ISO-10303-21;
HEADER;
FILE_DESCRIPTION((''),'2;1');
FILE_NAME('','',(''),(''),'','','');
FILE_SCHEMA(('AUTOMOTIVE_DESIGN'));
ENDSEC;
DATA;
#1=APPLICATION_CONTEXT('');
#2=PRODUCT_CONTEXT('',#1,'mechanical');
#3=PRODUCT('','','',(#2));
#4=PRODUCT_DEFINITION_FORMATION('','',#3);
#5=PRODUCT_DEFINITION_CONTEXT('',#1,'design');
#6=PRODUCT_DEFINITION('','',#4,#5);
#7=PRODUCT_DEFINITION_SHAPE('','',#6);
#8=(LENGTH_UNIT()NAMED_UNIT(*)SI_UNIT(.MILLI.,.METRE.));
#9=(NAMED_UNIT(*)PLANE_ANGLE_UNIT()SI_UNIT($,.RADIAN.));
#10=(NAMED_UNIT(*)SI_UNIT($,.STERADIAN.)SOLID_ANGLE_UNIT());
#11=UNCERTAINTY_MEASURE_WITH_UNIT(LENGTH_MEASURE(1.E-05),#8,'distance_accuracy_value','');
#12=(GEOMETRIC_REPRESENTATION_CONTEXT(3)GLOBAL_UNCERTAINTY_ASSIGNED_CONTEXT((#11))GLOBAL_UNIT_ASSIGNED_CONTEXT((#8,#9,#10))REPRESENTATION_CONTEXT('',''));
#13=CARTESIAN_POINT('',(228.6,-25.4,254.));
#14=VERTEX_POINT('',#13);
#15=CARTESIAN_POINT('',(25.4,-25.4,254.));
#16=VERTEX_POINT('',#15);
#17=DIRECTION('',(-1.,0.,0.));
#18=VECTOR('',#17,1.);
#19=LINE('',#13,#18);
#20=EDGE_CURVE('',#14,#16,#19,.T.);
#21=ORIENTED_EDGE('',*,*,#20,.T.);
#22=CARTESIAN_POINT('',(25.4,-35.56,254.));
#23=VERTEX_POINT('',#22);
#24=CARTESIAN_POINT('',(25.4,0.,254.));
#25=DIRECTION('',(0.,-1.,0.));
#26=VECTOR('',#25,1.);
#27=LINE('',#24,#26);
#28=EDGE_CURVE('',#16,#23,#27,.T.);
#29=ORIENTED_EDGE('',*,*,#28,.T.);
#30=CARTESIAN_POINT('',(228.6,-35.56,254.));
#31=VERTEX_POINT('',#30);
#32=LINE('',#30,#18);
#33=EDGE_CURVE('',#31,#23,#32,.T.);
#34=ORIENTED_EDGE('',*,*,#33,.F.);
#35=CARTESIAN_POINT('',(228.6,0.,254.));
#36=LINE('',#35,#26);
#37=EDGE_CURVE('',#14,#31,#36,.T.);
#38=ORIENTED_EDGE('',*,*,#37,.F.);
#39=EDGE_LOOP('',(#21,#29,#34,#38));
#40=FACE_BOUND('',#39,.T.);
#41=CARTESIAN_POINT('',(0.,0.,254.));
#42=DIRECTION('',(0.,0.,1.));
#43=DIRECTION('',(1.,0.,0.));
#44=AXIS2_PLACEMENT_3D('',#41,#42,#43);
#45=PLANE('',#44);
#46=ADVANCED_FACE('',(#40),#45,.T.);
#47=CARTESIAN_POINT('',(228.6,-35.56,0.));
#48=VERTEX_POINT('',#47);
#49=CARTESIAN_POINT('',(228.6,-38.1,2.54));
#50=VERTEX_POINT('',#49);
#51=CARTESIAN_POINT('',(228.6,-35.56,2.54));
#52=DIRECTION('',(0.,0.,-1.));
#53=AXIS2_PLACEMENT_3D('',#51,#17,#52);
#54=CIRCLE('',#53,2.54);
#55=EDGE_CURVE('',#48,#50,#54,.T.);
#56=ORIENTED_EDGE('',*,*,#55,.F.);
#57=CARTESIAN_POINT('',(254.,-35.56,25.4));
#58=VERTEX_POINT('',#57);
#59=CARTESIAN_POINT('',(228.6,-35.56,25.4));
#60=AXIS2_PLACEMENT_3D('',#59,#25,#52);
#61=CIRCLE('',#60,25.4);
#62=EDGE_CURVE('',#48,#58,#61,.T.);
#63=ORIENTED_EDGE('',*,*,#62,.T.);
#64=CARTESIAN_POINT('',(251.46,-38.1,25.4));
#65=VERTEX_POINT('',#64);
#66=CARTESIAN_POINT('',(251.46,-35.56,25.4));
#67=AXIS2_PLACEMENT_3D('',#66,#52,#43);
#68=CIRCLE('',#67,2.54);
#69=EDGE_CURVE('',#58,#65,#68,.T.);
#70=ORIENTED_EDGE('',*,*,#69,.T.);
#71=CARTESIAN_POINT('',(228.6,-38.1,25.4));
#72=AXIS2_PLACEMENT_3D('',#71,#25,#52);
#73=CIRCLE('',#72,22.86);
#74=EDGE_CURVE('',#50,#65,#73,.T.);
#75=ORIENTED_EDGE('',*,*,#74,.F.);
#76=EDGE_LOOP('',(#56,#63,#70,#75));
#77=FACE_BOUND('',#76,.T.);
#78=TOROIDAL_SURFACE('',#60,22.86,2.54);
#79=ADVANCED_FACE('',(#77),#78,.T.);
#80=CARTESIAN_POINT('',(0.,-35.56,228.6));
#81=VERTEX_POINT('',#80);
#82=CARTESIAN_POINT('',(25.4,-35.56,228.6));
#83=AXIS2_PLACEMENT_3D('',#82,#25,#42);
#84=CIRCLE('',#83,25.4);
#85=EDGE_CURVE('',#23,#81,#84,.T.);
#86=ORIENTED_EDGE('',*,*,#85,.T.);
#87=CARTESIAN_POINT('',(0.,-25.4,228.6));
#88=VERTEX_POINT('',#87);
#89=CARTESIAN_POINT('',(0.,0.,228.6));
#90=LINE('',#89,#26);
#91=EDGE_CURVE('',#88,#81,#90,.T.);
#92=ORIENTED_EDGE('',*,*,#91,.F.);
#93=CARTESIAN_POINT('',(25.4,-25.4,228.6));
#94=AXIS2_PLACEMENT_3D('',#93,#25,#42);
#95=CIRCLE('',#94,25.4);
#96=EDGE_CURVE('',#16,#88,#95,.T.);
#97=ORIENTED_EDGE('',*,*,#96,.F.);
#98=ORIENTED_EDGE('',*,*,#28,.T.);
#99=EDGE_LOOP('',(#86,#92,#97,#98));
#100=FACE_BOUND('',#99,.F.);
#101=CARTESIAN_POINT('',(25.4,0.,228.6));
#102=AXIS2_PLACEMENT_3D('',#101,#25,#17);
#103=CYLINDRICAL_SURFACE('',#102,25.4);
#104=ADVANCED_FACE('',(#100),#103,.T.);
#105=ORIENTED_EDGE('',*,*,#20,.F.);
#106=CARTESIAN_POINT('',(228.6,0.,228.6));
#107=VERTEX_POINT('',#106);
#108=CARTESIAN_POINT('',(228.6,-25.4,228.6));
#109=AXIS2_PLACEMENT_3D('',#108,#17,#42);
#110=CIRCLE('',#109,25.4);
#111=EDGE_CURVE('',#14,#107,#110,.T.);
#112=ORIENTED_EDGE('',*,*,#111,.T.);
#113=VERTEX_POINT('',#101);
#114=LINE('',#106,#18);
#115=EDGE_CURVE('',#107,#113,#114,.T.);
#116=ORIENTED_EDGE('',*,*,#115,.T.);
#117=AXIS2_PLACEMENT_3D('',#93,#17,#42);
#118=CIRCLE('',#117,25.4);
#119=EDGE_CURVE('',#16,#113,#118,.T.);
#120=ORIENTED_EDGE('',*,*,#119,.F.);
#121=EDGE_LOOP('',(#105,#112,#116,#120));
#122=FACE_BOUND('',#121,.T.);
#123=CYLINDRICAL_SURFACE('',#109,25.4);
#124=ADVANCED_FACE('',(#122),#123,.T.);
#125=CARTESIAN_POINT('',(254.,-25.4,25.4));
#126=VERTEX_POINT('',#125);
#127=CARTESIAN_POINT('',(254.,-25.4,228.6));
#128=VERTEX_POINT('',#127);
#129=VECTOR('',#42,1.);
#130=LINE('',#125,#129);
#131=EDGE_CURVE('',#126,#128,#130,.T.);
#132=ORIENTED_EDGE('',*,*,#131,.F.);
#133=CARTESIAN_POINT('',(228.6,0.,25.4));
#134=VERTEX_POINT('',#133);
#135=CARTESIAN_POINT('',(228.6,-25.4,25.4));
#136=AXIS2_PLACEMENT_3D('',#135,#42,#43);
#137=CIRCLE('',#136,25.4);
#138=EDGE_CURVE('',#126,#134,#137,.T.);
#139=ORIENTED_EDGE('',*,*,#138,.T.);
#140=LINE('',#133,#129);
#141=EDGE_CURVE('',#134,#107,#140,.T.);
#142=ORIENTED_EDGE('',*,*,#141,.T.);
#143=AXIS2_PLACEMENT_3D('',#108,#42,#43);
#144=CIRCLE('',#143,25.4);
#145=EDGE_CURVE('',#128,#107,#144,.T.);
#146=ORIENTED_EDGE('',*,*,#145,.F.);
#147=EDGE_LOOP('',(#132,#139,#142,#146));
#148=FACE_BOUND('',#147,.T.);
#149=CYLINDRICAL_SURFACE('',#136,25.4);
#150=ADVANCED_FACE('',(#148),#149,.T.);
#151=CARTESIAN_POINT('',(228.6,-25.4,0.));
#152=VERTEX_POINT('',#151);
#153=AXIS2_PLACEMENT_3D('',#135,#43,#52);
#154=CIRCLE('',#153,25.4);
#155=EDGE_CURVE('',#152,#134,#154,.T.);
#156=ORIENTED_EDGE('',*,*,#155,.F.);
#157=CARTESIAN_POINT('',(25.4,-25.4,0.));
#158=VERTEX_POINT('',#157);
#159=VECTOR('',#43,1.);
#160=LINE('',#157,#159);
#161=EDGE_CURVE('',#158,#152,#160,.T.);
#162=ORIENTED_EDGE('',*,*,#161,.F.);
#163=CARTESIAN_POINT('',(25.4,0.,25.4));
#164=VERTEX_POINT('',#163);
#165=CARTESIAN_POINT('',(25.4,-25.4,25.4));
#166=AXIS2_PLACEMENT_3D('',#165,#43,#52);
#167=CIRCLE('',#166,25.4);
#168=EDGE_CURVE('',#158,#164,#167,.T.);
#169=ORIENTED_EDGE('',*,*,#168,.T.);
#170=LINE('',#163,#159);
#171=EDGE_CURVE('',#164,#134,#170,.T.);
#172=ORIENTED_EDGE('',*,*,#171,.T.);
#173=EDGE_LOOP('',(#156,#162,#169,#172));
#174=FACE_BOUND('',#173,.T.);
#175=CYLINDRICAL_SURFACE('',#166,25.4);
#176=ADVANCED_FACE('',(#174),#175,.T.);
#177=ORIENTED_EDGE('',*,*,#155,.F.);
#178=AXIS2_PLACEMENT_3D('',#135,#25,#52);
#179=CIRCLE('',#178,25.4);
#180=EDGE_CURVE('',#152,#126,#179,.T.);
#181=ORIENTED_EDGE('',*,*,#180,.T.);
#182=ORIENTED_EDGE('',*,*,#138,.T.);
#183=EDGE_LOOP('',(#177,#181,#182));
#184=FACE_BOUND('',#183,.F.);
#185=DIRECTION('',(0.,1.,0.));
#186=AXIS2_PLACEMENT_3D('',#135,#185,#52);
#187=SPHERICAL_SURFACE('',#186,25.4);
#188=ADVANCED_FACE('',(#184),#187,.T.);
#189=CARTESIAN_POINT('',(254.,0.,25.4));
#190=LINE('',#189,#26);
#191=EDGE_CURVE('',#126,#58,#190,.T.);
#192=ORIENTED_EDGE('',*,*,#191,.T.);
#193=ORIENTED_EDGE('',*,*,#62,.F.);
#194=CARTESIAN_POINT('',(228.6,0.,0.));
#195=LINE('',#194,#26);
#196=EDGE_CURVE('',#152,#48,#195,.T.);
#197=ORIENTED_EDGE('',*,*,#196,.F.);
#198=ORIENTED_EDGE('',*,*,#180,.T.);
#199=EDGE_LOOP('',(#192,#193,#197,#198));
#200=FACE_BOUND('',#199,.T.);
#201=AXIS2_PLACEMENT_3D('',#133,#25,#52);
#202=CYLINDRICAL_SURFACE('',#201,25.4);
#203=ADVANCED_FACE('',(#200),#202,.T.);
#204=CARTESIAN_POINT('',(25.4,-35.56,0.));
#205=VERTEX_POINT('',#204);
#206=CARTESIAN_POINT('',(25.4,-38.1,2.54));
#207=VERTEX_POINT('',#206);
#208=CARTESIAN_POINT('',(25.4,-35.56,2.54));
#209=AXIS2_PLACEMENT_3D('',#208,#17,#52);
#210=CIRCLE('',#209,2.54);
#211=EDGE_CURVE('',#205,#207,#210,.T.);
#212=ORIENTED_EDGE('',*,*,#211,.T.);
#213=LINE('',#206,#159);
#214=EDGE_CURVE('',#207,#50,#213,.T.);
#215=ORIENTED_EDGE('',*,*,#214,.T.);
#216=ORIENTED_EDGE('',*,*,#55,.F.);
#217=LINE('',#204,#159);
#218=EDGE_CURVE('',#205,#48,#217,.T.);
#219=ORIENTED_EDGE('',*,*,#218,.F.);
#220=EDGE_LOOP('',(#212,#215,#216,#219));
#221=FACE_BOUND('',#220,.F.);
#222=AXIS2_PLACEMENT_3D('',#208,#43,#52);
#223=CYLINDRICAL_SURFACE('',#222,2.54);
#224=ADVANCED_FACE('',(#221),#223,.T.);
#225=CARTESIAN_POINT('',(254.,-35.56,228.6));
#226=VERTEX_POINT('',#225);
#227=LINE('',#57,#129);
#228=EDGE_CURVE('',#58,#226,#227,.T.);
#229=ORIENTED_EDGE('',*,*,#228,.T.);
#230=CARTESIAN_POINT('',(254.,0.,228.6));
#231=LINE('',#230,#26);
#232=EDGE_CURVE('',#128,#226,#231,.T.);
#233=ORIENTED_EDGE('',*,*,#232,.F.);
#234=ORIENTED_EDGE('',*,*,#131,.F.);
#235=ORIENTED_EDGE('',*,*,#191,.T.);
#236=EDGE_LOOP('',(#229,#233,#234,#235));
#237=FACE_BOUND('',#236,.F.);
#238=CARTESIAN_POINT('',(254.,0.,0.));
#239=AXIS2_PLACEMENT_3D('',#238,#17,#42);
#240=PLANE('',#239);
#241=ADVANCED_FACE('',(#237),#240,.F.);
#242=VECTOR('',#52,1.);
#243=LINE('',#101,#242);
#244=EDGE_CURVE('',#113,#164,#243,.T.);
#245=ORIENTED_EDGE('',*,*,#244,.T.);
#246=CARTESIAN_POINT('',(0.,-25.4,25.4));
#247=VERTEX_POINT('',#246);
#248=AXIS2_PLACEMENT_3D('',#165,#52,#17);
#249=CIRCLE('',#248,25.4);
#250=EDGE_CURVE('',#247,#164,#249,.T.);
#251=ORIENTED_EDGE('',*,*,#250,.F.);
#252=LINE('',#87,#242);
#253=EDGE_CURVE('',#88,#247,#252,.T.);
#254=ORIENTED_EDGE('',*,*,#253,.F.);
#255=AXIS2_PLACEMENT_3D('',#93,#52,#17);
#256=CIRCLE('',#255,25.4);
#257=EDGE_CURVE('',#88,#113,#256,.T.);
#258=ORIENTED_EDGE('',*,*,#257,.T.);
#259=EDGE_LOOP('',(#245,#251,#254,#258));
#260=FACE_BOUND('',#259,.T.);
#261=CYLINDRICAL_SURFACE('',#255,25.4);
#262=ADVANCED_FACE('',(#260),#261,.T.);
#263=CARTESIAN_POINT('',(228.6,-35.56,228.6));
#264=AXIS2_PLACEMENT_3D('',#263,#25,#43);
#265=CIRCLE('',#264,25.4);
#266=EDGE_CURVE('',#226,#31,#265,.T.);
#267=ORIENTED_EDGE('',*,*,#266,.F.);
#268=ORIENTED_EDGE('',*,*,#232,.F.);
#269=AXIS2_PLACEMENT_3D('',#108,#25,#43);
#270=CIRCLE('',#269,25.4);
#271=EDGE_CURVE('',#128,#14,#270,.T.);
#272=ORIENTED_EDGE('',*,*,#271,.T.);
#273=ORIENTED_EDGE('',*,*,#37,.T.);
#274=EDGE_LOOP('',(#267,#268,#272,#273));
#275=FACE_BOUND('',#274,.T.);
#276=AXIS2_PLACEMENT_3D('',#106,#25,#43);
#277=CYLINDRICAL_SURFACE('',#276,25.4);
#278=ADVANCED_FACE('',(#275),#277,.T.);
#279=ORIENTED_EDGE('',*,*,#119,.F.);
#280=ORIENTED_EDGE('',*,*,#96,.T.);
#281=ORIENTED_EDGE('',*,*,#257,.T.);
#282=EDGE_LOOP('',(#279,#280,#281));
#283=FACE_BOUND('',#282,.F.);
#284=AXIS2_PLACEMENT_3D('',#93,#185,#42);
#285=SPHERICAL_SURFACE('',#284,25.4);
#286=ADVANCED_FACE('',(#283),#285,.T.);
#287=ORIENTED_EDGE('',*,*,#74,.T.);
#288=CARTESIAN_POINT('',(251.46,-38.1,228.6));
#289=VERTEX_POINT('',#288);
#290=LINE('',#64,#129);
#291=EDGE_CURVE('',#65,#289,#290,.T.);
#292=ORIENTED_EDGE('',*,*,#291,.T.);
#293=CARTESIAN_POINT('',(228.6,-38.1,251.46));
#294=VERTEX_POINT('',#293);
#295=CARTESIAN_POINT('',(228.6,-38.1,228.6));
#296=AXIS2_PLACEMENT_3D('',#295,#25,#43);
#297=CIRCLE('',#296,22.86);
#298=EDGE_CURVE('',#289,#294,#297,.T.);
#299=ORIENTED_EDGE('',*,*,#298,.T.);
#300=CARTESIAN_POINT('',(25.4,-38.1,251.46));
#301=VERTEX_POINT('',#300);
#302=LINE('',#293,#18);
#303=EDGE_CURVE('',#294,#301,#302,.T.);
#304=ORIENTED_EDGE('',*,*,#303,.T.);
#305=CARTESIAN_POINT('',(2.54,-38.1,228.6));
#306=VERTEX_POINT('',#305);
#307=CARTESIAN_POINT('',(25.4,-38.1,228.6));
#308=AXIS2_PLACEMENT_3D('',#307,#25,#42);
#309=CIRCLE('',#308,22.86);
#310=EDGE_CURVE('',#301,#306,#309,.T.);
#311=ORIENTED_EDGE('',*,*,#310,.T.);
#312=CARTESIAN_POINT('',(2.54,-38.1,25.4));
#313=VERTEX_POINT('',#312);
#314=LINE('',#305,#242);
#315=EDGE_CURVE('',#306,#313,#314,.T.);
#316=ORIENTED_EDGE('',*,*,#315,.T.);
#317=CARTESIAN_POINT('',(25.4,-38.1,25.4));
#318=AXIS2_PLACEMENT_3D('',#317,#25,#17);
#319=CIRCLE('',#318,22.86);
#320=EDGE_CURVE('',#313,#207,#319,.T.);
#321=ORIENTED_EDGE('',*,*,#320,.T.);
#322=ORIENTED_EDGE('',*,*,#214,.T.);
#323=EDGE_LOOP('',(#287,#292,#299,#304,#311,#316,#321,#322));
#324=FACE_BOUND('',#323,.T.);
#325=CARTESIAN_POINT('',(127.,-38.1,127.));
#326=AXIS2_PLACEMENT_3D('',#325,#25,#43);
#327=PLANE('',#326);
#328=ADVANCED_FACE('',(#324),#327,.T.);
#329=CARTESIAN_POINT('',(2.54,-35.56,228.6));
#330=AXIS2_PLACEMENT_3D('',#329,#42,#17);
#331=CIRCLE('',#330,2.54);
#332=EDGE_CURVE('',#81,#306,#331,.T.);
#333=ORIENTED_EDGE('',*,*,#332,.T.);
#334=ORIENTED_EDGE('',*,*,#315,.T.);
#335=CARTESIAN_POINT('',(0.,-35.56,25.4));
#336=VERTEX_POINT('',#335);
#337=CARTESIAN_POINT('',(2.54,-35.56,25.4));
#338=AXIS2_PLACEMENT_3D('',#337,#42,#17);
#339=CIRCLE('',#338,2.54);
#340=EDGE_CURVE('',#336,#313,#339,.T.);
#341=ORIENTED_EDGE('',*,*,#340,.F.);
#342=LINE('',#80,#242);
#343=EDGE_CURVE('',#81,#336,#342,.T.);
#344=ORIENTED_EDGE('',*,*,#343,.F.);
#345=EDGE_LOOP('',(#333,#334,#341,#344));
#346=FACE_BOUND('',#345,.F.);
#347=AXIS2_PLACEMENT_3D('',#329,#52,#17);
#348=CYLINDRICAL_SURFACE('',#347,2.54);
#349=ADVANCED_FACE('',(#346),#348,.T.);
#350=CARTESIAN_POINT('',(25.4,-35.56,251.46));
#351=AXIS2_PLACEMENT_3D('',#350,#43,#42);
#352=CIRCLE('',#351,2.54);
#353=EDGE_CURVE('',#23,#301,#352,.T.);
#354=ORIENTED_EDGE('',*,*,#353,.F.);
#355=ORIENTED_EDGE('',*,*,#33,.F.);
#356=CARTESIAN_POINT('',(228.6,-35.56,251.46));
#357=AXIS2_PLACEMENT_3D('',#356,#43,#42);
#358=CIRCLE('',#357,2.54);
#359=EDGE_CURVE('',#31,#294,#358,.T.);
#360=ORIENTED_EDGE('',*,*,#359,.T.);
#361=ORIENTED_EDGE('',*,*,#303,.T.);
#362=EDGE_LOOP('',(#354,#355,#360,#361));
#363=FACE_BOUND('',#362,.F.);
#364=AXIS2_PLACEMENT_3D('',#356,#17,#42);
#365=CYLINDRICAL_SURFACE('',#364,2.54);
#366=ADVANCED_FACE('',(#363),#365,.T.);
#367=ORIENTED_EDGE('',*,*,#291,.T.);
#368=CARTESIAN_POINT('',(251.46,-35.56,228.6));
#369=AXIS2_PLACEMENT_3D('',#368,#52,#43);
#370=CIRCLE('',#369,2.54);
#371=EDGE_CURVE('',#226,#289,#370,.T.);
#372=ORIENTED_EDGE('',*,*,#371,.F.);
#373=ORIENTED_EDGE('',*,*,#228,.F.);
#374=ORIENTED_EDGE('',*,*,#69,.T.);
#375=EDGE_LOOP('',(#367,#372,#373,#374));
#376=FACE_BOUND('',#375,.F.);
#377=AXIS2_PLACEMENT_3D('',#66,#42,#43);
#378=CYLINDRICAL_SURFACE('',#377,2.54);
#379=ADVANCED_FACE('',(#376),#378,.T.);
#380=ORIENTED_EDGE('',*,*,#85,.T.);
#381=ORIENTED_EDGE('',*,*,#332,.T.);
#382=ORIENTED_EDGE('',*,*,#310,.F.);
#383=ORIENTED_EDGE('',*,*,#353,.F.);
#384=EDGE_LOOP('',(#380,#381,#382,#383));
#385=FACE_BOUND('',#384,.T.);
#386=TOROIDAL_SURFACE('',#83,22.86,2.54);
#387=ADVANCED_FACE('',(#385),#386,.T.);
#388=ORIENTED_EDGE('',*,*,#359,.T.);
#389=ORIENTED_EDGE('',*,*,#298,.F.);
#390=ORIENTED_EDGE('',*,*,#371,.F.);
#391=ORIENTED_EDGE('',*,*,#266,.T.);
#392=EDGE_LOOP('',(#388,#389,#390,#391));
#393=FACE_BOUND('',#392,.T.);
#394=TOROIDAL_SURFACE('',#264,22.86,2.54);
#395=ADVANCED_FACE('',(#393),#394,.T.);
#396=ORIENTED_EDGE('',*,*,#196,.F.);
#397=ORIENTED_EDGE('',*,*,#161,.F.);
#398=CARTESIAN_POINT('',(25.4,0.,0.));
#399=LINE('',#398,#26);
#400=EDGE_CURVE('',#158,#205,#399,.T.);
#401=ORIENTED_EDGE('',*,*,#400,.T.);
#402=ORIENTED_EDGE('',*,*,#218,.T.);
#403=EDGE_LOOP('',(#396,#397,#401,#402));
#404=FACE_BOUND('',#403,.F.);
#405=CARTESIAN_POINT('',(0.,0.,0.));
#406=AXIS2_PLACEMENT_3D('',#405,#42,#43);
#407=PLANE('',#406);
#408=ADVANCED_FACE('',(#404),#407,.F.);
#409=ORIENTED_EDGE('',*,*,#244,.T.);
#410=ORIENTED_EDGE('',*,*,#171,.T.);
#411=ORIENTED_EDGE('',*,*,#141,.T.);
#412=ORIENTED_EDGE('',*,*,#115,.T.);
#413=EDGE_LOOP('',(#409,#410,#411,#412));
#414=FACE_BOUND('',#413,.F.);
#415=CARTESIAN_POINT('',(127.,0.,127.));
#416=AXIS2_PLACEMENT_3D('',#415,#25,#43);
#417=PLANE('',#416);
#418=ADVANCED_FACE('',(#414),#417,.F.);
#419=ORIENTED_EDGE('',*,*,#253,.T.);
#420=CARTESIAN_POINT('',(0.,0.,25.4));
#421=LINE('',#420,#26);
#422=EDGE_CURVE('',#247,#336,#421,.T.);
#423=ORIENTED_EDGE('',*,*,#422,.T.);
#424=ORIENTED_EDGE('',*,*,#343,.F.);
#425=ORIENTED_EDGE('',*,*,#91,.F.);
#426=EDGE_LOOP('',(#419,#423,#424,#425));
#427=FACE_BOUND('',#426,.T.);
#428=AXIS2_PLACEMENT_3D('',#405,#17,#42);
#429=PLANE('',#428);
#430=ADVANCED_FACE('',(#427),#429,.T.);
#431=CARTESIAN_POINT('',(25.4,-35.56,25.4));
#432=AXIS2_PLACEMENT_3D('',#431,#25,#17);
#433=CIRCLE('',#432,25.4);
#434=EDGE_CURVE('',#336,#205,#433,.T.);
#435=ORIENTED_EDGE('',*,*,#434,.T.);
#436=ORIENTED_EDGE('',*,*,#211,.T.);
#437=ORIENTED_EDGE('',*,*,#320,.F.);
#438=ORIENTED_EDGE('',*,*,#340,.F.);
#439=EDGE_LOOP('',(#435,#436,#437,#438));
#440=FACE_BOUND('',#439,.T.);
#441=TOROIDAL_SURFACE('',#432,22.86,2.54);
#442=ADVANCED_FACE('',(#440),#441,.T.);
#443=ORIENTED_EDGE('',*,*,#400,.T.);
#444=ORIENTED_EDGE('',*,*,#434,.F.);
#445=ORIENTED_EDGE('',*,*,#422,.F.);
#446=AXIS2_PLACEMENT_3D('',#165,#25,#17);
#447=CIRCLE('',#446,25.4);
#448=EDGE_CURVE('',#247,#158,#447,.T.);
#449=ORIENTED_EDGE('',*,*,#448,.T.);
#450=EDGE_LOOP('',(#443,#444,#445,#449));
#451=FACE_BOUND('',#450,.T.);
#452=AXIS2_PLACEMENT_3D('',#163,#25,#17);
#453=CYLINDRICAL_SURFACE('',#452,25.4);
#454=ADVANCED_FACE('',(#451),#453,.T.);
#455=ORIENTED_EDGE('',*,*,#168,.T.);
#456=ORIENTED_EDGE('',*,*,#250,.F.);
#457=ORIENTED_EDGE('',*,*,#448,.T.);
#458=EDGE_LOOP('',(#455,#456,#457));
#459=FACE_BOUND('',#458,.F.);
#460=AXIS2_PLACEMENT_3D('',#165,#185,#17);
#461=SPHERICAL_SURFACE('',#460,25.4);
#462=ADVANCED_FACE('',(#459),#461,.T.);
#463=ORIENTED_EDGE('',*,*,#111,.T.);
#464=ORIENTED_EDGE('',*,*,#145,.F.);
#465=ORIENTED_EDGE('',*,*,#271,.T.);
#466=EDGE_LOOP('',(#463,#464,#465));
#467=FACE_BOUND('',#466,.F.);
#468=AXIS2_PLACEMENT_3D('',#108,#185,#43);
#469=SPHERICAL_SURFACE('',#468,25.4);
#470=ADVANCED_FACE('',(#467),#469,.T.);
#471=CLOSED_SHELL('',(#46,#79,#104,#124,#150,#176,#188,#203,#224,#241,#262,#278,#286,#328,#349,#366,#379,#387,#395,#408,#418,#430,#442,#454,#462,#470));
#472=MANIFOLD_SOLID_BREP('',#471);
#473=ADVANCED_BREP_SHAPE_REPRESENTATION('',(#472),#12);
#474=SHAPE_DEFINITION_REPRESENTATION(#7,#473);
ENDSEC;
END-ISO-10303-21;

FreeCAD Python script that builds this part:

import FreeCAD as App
import Part
import Sketcher
from FreeCAD import Vector
Q = App.Units.Quantity


def edges_at(feature, points):
    """Names of the edges that pass closest to the given points."""
    edges = feature.Shape.Edges
    near = lambda p: min(range(len(edges)), key=lambda i: edges[i].distToShape(Part.Vertex(*p))[0])
    return sorted({f"Edge{near(p) + 1}" for p in points})


def add_polygon(sketch, points):
    """Adds a closed chain of lines whose ends are joined by coincident constraints."""
    first, n = sketch.GeometryCount, len(points)
    for a, b in zip(points, points[1:] + points[:1]):
        sketch.addGeometry(Part.LineSegment(App.Vector(*a, 0), App.Vector(*b, 0)), False)
    for i in range(n):
        sketch.addConstraint(Sketcher.Constraint("Coincident", first + i, 2, first + (i + 1) % n, 1))

doc = App.newDocument("Part")
body = doc.addObject("PartDesign::Body", "Body")

# Sketch on XZ plane
sketch1 = body.newObject("Sketcher::SketchObject", "Sketch")
sketch1.AttachmentSupport = (doc.getObject("XZ_Plane"), [""])
sketch1.MapMode = "FlatFace"
add_polygon(sketch1, [(0, 254), (0, 0), (254, 0), (254, 254)])  # lines 0-3
sketch1.addConstraint([
    Sketcher.Constraint("Vertical", 0),
    Sketcher.Constraint("Horizontal", 1),
    Sketcher.Constraint("Vertical", 2),
    Sketcher.Constraint("Horizontal", 3),
    Sketcher.Constraint("Coincident", 0, 2, -1, 1),
    Sketcher.Constraint("Equal", 3, 0),
    Sketcher.Constraint("DistanceX", 1, 1, 1, 2, Q("10 in")),
])
pad1 = body.newObject("PartDesign::Pad", "Pad")
pad1.Profile = sketch1
pad1.Length = Q("1.5 in")
doc.recompute()

fillet = body.newObject("PartDesign::Fillet", "Fillet")
fillet.Base = (pad1, edges_at(pad1, [(0, -19.05, 254)]))
fillet.Radius = Q("1 in")
doc.recompute()

fillet2 = body.newObject("PartDesign::Fillet", "Fillet001")
fillet2.Base = (fillet, edges_at(fillet, [(0, -19.05, 0)]))
fillet2.Radius = Q("1 in")
doc.recompute()

fillet3 = body.newObject("PartDesign::Fillet", "Fillet002")
fillet3.Base = (fillet2, edges_at(fillet2, [(254, -19.05, 0)]))
fillet3.Radius = Q("1 in")
doc.recompute()

fillet4 = body.newObject("PartDesign::Fillet", "Fillet003")
fillet4.Base = (fillet3, edges_at(fillet3, [(254, -19.05, 254)]))
fillet4.Radius = Q("1 in")
doc.recompute()

fillet5 = body.newObject("PartDesign::Fillet", "Fillet004")
fillet5.Base = (fillet4, edges_at(fillet4, [(254, -38.1, 127)]))
fillet5.Radius = Q("0.1 in")
doc.recompute()

fillet6 = body.newObject("PartDesign::Fillet", "Fillet005")
fillet6.Base = (fillet5, edges_at(fillet5, [(254, 0, 127)]))
fillet6.Radius = Q("1 in")

doc.recompute()
